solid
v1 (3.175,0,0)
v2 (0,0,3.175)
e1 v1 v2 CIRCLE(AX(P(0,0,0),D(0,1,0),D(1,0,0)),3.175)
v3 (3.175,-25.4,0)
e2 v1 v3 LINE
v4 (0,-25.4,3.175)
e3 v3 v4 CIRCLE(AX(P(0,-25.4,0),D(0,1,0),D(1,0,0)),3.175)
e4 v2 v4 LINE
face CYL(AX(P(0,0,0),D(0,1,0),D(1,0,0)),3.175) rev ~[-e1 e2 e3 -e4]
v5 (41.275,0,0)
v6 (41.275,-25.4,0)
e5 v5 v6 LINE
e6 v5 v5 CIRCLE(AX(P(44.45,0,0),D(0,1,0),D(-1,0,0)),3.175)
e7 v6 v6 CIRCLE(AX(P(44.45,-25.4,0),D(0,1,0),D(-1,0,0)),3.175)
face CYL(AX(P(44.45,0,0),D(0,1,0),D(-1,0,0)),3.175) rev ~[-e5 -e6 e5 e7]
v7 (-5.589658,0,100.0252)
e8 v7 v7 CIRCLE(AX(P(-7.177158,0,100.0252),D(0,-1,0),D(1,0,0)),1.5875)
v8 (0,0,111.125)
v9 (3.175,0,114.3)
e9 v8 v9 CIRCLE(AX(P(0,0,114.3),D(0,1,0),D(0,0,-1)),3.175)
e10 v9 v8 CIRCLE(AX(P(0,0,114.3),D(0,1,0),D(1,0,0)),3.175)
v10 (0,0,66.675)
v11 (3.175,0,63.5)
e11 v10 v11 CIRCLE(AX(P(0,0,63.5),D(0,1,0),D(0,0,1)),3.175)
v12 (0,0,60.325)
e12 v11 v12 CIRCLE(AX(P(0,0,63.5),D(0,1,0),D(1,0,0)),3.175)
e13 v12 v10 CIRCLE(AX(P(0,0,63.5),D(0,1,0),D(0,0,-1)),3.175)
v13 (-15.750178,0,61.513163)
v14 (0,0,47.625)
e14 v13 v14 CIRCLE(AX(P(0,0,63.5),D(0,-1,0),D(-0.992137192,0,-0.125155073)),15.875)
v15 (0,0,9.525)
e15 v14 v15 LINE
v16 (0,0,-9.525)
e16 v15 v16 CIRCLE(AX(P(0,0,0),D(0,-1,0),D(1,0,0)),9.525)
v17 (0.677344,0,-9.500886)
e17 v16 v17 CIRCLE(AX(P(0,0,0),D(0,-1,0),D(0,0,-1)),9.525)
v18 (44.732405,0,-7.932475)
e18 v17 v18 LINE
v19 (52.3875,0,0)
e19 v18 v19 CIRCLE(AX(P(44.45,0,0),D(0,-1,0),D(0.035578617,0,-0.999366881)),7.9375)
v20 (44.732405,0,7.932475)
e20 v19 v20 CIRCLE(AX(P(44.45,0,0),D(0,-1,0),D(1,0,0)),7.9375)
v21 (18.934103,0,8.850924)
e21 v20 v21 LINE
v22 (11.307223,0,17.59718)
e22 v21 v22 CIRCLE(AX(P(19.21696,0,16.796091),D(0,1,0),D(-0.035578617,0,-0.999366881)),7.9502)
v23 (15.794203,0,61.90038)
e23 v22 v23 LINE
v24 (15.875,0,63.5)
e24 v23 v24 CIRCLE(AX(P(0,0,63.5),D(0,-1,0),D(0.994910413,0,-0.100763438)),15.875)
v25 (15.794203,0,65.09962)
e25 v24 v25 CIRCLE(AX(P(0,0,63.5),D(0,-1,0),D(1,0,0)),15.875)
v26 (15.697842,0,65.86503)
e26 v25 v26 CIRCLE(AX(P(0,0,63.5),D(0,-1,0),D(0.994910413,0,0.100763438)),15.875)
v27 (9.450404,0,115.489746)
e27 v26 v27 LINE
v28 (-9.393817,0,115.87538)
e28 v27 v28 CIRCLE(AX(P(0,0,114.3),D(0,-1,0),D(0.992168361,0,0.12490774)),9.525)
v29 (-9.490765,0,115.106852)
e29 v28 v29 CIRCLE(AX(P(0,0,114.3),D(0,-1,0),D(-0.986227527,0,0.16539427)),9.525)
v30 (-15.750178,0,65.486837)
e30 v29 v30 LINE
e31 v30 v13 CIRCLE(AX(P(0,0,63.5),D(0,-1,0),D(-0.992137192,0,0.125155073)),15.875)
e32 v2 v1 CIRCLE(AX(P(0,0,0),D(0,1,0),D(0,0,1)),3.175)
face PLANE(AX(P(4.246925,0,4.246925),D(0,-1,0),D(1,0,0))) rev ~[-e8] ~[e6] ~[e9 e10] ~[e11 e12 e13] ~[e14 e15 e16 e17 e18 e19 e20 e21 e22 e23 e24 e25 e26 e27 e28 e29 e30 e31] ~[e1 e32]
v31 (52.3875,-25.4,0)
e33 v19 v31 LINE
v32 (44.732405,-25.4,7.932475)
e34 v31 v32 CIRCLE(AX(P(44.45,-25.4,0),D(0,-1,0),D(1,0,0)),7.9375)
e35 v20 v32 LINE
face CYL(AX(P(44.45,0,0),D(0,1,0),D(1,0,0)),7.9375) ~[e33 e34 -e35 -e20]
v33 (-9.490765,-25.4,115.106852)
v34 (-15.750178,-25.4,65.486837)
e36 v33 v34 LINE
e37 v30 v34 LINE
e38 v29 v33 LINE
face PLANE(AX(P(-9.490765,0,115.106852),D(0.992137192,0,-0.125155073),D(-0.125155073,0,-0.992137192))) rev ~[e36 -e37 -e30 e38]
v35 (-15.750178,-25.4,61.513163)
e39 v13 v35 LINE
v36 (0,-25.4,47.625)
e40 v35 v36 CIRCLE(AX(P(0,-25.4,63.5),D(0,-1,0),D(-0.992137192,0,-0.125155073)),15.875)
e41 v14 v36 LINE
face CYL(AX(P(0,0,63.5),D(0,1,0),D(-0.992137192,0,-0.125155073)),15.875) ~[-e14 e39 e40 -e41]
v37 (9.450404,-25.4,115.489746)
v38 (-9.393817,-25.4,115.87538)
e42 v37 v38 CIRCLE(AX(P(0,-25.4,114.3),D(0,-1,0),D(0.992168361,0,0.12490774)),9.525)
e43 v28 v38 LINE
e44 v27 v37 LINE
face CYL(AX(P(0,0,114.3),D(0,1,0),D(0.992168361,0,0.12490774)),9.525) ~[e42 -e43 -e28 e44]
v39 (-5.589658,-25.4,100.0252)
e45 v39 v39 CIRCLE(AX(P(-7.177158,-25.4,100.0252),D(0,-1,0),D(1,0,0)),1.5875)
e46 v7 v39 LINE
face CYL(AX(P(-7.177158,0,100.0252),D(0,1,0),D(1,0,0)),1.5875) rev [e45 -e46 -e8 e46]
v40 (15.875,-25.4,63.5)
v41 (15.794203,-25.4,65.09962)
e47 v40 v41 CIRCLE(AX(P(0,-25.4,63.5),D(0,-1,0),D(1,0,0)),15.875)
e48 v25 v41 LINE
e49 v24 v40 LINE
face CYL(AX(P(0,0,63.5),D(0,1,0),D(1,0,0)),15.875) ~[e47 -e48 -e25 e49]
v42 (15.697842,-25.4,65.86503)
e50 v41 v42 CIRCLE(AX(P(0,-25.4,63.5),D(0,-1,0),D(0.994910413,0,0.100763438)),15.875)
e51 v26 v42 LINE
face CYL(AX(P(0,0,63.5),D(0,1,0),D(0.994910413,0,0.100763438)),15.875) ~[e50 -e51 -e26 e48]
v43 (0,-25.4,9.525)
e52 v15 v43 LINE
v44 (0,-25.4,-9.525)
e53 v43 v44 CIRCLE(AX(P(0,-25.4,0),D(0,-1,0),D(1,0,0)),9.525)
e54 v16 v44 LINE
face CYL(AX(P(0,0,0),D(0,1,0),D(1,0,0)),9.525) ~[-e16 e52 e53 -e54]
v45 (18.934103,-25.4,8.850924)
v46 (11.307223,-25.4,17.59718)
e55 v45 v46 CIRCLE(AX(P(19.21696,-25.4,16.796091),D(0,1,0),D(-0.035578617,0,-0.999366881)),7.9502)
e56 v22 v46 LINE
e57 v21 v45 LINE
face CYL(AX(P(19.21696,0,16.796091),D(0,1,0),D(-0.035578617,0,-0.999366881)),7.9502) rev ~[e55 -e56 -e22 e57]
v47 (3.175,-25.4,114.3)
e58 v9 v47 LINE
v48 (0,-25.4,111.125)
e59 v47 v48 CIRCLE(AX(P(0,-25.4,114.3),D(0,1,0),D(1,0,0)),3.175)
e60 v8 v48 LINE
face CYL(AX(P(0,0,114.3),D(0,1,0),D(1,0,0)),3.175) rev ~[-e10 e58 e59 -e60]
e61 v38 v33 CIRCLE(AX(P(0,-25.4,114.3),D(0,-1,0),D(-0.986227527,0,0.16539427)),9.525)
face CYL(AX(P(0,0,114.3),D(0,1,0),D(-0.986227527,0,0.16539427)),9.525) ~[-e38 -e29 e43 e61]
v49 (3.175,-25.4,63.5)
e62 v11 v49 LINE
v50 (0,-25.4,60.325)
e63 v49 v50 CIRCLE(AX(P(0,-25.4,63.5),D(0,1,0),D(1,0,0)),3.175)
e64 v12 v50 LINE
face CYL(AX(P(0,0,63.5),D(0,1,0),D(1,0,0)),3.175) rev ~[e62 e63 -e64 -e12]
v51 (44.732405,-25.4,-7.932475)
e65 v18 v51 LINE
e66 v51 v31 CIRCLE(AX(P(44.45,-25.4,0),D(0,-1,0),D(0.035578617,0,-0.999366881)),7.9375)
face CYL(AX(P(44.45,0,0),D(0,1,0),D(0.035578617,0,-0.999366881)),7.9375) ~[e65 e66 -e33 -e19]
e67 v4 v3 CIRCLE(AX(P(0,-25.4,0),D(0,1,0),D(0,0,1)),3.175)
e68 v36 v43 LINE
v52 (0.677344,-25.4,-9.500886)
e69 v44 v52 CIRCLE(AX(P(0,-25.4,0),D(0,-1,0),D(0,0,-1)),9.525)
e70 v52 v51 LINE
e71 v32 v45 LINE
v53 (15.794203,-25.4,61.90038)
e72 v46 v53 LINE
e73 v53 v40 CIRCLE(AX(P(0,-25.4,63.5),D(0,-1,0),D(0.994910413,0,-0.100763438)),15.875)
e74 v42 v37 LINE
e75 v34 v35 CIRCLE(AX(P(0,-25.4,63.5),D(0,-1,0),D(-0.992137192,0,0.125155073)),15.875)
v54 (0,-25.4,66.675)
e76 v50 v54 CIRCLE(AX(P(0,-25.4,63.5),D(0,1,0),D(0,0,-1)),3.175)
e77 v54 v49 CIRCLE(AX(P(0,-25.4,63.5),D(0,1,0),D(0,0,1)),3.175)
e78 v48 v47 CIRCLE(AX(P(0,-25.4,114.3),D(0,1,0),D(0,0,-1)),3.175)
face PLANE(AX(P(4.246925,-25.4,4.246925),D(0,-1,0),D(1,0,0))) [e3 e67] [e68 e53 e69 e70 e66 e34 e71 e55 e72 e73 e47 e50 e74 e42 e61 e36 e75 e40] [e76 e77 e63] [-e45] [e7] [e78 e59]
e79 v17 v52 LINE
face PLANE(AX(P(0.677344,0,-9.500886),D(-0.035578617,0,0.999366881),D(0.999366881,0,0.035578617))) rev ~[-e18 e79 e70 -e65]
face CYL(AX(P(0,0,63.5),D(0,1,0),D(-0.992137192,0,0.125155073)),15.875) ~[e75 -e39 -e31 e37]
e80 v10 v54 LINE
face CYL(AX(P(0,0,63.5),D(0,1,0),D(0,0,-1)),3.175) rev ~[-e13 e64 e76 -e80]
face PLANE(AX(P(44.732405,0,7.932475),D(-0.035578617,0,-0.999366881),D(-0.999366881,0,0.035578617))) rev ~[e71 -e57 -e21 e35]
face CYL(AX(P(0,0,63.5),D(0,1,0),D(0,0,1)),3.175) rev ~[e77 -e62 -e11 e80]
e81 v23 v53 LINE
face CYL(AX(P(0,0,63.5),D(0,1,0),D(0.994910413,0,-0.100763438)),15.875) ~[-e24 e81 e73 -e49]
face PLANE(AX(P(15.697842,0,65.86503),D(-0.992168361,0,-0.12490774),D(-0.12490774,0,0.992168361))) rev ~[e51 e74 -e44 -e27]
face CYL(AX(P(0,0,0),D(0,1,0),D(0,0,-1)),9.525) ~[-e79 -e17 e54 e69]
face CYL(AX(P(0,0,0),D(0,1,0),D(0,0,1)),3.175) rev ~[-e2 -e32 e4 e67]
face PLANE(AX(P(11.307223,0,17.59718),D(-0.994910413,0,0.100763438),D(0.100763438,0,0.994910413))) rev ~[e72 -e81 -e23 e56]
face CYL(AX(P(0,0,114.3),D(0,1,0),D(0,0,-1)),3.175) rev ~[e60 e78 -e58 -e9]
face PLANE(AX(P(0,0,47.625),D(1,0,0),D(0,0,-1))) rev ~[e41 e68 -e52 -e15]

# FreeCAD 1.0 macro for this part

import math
import FreeCAD as App
import Part
import Sketcher
from FreeCAD import Vector
Q = App.Units.Quantity

doc = App.newDocument("Part")
body = doc.addObject("PartDesign::Body", "Body")

# Sketch on XZ plane
sketch1 = body.newObject("Sketcher::SketchObject", "Sketch")
sketch1.AttachmentSupport = (doc.getObject("XZ_Plane"), [""])
sketch1.MapMode = "FlatFace"
sketch1.addGeometry([
    Part.ArcOfCircle(Part.Circle(Vector(0, 0, 0), Vector(0, 0, 1), 9.5), math.radians(90), math.radians(270)),  # 0
    Part.ArcOfCircle(Part.Circle(Vector(0, 0, 0), Vector(0, 0, 1), 9.5), math.radians(-90), math.radians(-85.92)),  # 1
    Part.LineSegment(Vector(0.7, -9.5, 0), Vector(44.7, -7.9, 0)),  # 2
    Part.ArcOfCircle(Part.Circle(Vector(44.5, 0, 0), Vector(0, 0, 1), 7.9), math.radians(-88), math.radians(0)),  # 3
    Part.ArcOfCircle(Part.Circle(Vector(44.5, 0, 0), Vector(0, 0, 1), 7.9), math.radians(0), math.radians(88)),  # 4
    Part.LineSegment(Vector(44.7, 7.9, 0), Vector(18.9, 8.9, 0)),  # 5
    Part.ArcOfCircle(Part.Circle(Vector(19.2, 16.8, 0), Vector(0, 0, 1), 8), math.radians(174), math.radians(268)),  # 6
    Part.LineSegment(Vector(11.3, 17.6, 0), Vector(15.8, 61.9, 0)),  # 7
    Part.ArcOfCircle(Part.Circle(Vector(0, 63.5, 0), Vector(0, 0, 1), 15.9), math.radians(-5.78), math.radians(0)),  # 8
    Part.ArcOfCircle(Part.Circle(Vector(0, 63.5, 0), Vector(0, 0, 1), 15.9), math.radians(0), math.radians(5.78)),  # 9
    Part.ArcOfCircle(Part.Circle(Vector(0, 63.5, 0), Vector(0, 0, 1), 15.9), math.radians(5.78), math.radians(8.57)),  # 10
    Part.LineSegment(Vector(15.7, 65.9, 0), Vector(9.5, 115.5, 0)),  # 11
    Part.ArcOfCircle(Part.Circle(Vector(0, 114.3, 0), Vector(0, 0, 1), 9.5), math.radians(7), math.radians(170)),  # 12
    Part.ArcOfCircle(Part.Circle(Vector(0, 114.3, 0), Vector(0, 0, 1), 9.5), math.radians(170.48), math.radians(175.14)),  # 13
    Part.LineSegment(Vector(-9.5, 115.1, 0), Vector(-15.8, 65.5, 0)),  # 14
    Part.ArcOfCircle(Part.Circle(Vector(0, 63.5, 0), Vector(0, 0, 1), 15.9), math.radians(172.81), math.radians(187.19)),  # 15
    Part.ArcOfCircle(Part.Circle(Vector(0, 63.5, 0), Vector(0, 0, 1), 15.9), math.radians(-173), math.radians(-90)),  # 16
    Part.LineSegment(Vector(0, 47.6, 0), Vector(0, 9.5, 0)),  # 17
    Part.ArcOfCircle(Part.Circle(Vector(0, 0, 0), Vector(0, 0, 1), 3.2), math.radians(0), math.radians(90)),  # 18
    Part.ArcOfCircle(Part.Circle(Vector(0, 0, 0), Vector(0, 0, 1), 3.2), math.radians(90), math.radians(360)),  # 19
    Part.Circle(Vector(44.5, 0, 0), Vector(0, 0, 1), 3.2),  # 20
    Part.ArcOfCircle(Part.Circle(Vector(0, 63.5, 0), Vector(0, 0, 1), 3.2), math.radians(0), math.radians(90)),  # 21
    Part.ArcOfCircle(Part.Circle(Vector(0, 63.5, 0), Vector(0, 0, 1), 3.2), math.radians(-90), math.radians(0)),  # 22
    Part.ArcOfCircle(Part.Circle(Vector(0, 63.5, 0), Vector(0, 0, 1), 3.2), math.radians(90), math.radians(270)),  # 23
    Part.Circle(Vector(-7.2, 100, 0), Vector(0, 0, 1), 1.6),  # 24
    Part.ArcOfCircle(Part.Circle(Vector(0, 114.3, 0), Vector(0, 0, 1), 3.2), math.radians(0), math.radians(270)),  # 25
    Part.ArcOfCircle(Part.Circle(Vector(0, 114.3, 0), Vector(0, 0, 1), 3.2), math.radians(-90), math.radians(0)),  # 26
], False)
sketch1.addConstraint([
    Sketcher.Constraint("Tangent", 0, 2, 1, 1),
    Sketcher.Constraint("Coincident", 1, 2, 2, 1),
    Sketcher.Constraint("Tangent", 2, 2, 3, 1),
    Sketcher.Constraint("Tangent", 3, 2, 4, 1),
    Sketcher.Constraint("Tangent", 4, 2, 5, 1),
    Sketcher.Constraint("Tangent", 5, 2, 6, 2),
    Sketcher.Constraint("Tangent", 6, 1, 7, 1),
    Sketcher.Constraint("Tangent", 7, 2, 8, 1),
    Sketcher.Constraint("Tangent", 8, 2, 9, 1),
    Sketcher.Constraint("Tangent", 9, 2, 10, 1),
    Sketcher.Constraint("Coincident", 10, 2, 11, 1),
    Sketcher.Constraint("Tangent", 11, 2, 12, 1),
    Sketcher.Constraint("Tangent", 12, 2, 13, 1),
    Sketcher.Constraint("Coincident", 13, 2, 14, 1),
    Sketcher.Constraint("Tangent", 14, 2, 15, 1),
    Sketcher.Constraint("Tangent", 15, 2, 16, 1),
    Sketcher.Constraint("Coincident", 16, 2, 17, 1),
    Sketcher.Constraint("Coincident", 17, 2, 0, 1),
    Sketcher.Constraint("Tangent", 18, 1, 19, 2),
    Sketcher.Constraint("Coincident", 19, 1, 18, 2),
    Sketcher.Constraint("Tangent", 21, 1, 22, 2),
    Sketcher.Constraint("Tangent", 22, 1, 23, 2),
    Sketcher.Constraint("Tangent", 23, 1, 21, 2),
    Sketcher.Constraint("Tangent", 25, 1, 26, 2),
    Sketcher.Constraint("Coincident", 26, 1, 25, 2),
    Sketcher.Constraint("Vertical", 17),
    Sketcher.Constraint("Coincident", 0, 3, -1, 1),
    Sketcher.Constraint("Coincident", 18, 3, -1, 1),
    Sketcher.Constraint("Coincident", 10, 3, 8, 3),
    Sketcher.Constraint("Coincident", 15, 3, 8, 3),
    Sketcher.Constraint("Coincident", 20, 3, 3, 3),
    Sketcher.Constraint("Coincident", 21, 3, 8, 3),
    Sketcher.Constraint("Coincident", 25, 3, 12, 3),
    Sketcher.Constraint("Equal", 0, 1),
    Sketcher.Constraint("Equal", 3, 4),
    Sketcher.Constraint("Equal", 1, 12),
    Sketcher.Constraint("Equal", 12, 13),
    Sketcher.Constraint("Equal", 10, 15),
    Sketcher.Constraint("Equal", 15, 16),
    Sketcher.Constraint("Equal", 19, 20),
    Sketcher.Constraint("Equal", 20, 21),
    Sketcher.Constraint("Equal", 23, 25),
    Sketcher.Constraint("Symmetric", 2, 2, 4, 2, -1),
    Sketcher.Constraint("PointOnObject", 8, 3, -2),
    Sketcher.Constraint("PointOnObject", 12, 3, -2),
    Sketcher.Constraint("PointOnObject", 0, 2, -2),
    Sketcher.Constraint("PointOnObject", 3, 2, -1),
    Sketcher.Constraint("PointOnObject", 16, 2, -2),
    Sketcher.Constraint("PointOnObject", 18, 1, -1),
    Sketcher.Constraint("PointOnObject", 19, 1, -2),
    Sketcher.Constraint("PointOnObject", 22, 1, -2),
    Sketcher.Constraint("PointOnObject", 23, 1, -2),
    Sketcher.Constraint("PointOnObject", 26, 1, -2),
    Sketcher.Constraint("Horizontal", 23, 3, 8, 2),
    Sketcher.Constraint("Horizontal", 8, 2, 21, 1),
    Sketcher.Constraint("Horizontal", 26, 3, 25, 1),
    Sketcher.Constraint("Vertical", 7, 2, 9, 2),
    Sketcher.Constraint("Vertical", 14, 2, 15, 2),
    Sketcher.Constraint("Diameter", 20, Q("0.25 in")),
    Sketcher.Constraint("Diameter", 24, Q("0.125 in")),
    Sketcher.Constraint("DistanceY", 17, 2, 17, 1, Q("1.5 in")),
    Sketcher.Constraint("Radius", 0, Q("0.375 in")),
    Sketcher.Constraint("Radius", 3, Q("0.3125 in")),
    Sketcher.Constraint("Radius", 6, Q("0.313 in")),
    Sketcher.Constraint("Radius", 8, Q("0.625 in")),
    Sketcher.Constraint("DistanceY", 9, 3, 12, 3, Q("2 in")),
    Sketcher.Constraint("DistanceX", -1, 1, 3, 3, Q("1.75 in")),
    Sketcher.Constraint("DistanceY", -1, 1, 24, 3, Q("3.938 in")),
    Sketcher.Constraint("Distance", 2, 44.082972),
    Sketcher.Constraint("Distance", 7, 44.529839),
    Sketcher.Constraint("Distance", 14, 50.01326),
    Sketcher.Constraint("DistanceY", -1, 1, 10, 2, 65.86503),
    Sketcher.Constraint("DistanceY", -1, 1, 12, 2, 115.87538),
    Sketcher.Constraint("DistanceX", 24, 3, 11, 2, 16.627561),
])
pad1 = body.newObject("PartDesign::Pad", "Pad")
pad1.Profile = sketch1
pad1.Length = Q("1 in")

doc.recompute()
